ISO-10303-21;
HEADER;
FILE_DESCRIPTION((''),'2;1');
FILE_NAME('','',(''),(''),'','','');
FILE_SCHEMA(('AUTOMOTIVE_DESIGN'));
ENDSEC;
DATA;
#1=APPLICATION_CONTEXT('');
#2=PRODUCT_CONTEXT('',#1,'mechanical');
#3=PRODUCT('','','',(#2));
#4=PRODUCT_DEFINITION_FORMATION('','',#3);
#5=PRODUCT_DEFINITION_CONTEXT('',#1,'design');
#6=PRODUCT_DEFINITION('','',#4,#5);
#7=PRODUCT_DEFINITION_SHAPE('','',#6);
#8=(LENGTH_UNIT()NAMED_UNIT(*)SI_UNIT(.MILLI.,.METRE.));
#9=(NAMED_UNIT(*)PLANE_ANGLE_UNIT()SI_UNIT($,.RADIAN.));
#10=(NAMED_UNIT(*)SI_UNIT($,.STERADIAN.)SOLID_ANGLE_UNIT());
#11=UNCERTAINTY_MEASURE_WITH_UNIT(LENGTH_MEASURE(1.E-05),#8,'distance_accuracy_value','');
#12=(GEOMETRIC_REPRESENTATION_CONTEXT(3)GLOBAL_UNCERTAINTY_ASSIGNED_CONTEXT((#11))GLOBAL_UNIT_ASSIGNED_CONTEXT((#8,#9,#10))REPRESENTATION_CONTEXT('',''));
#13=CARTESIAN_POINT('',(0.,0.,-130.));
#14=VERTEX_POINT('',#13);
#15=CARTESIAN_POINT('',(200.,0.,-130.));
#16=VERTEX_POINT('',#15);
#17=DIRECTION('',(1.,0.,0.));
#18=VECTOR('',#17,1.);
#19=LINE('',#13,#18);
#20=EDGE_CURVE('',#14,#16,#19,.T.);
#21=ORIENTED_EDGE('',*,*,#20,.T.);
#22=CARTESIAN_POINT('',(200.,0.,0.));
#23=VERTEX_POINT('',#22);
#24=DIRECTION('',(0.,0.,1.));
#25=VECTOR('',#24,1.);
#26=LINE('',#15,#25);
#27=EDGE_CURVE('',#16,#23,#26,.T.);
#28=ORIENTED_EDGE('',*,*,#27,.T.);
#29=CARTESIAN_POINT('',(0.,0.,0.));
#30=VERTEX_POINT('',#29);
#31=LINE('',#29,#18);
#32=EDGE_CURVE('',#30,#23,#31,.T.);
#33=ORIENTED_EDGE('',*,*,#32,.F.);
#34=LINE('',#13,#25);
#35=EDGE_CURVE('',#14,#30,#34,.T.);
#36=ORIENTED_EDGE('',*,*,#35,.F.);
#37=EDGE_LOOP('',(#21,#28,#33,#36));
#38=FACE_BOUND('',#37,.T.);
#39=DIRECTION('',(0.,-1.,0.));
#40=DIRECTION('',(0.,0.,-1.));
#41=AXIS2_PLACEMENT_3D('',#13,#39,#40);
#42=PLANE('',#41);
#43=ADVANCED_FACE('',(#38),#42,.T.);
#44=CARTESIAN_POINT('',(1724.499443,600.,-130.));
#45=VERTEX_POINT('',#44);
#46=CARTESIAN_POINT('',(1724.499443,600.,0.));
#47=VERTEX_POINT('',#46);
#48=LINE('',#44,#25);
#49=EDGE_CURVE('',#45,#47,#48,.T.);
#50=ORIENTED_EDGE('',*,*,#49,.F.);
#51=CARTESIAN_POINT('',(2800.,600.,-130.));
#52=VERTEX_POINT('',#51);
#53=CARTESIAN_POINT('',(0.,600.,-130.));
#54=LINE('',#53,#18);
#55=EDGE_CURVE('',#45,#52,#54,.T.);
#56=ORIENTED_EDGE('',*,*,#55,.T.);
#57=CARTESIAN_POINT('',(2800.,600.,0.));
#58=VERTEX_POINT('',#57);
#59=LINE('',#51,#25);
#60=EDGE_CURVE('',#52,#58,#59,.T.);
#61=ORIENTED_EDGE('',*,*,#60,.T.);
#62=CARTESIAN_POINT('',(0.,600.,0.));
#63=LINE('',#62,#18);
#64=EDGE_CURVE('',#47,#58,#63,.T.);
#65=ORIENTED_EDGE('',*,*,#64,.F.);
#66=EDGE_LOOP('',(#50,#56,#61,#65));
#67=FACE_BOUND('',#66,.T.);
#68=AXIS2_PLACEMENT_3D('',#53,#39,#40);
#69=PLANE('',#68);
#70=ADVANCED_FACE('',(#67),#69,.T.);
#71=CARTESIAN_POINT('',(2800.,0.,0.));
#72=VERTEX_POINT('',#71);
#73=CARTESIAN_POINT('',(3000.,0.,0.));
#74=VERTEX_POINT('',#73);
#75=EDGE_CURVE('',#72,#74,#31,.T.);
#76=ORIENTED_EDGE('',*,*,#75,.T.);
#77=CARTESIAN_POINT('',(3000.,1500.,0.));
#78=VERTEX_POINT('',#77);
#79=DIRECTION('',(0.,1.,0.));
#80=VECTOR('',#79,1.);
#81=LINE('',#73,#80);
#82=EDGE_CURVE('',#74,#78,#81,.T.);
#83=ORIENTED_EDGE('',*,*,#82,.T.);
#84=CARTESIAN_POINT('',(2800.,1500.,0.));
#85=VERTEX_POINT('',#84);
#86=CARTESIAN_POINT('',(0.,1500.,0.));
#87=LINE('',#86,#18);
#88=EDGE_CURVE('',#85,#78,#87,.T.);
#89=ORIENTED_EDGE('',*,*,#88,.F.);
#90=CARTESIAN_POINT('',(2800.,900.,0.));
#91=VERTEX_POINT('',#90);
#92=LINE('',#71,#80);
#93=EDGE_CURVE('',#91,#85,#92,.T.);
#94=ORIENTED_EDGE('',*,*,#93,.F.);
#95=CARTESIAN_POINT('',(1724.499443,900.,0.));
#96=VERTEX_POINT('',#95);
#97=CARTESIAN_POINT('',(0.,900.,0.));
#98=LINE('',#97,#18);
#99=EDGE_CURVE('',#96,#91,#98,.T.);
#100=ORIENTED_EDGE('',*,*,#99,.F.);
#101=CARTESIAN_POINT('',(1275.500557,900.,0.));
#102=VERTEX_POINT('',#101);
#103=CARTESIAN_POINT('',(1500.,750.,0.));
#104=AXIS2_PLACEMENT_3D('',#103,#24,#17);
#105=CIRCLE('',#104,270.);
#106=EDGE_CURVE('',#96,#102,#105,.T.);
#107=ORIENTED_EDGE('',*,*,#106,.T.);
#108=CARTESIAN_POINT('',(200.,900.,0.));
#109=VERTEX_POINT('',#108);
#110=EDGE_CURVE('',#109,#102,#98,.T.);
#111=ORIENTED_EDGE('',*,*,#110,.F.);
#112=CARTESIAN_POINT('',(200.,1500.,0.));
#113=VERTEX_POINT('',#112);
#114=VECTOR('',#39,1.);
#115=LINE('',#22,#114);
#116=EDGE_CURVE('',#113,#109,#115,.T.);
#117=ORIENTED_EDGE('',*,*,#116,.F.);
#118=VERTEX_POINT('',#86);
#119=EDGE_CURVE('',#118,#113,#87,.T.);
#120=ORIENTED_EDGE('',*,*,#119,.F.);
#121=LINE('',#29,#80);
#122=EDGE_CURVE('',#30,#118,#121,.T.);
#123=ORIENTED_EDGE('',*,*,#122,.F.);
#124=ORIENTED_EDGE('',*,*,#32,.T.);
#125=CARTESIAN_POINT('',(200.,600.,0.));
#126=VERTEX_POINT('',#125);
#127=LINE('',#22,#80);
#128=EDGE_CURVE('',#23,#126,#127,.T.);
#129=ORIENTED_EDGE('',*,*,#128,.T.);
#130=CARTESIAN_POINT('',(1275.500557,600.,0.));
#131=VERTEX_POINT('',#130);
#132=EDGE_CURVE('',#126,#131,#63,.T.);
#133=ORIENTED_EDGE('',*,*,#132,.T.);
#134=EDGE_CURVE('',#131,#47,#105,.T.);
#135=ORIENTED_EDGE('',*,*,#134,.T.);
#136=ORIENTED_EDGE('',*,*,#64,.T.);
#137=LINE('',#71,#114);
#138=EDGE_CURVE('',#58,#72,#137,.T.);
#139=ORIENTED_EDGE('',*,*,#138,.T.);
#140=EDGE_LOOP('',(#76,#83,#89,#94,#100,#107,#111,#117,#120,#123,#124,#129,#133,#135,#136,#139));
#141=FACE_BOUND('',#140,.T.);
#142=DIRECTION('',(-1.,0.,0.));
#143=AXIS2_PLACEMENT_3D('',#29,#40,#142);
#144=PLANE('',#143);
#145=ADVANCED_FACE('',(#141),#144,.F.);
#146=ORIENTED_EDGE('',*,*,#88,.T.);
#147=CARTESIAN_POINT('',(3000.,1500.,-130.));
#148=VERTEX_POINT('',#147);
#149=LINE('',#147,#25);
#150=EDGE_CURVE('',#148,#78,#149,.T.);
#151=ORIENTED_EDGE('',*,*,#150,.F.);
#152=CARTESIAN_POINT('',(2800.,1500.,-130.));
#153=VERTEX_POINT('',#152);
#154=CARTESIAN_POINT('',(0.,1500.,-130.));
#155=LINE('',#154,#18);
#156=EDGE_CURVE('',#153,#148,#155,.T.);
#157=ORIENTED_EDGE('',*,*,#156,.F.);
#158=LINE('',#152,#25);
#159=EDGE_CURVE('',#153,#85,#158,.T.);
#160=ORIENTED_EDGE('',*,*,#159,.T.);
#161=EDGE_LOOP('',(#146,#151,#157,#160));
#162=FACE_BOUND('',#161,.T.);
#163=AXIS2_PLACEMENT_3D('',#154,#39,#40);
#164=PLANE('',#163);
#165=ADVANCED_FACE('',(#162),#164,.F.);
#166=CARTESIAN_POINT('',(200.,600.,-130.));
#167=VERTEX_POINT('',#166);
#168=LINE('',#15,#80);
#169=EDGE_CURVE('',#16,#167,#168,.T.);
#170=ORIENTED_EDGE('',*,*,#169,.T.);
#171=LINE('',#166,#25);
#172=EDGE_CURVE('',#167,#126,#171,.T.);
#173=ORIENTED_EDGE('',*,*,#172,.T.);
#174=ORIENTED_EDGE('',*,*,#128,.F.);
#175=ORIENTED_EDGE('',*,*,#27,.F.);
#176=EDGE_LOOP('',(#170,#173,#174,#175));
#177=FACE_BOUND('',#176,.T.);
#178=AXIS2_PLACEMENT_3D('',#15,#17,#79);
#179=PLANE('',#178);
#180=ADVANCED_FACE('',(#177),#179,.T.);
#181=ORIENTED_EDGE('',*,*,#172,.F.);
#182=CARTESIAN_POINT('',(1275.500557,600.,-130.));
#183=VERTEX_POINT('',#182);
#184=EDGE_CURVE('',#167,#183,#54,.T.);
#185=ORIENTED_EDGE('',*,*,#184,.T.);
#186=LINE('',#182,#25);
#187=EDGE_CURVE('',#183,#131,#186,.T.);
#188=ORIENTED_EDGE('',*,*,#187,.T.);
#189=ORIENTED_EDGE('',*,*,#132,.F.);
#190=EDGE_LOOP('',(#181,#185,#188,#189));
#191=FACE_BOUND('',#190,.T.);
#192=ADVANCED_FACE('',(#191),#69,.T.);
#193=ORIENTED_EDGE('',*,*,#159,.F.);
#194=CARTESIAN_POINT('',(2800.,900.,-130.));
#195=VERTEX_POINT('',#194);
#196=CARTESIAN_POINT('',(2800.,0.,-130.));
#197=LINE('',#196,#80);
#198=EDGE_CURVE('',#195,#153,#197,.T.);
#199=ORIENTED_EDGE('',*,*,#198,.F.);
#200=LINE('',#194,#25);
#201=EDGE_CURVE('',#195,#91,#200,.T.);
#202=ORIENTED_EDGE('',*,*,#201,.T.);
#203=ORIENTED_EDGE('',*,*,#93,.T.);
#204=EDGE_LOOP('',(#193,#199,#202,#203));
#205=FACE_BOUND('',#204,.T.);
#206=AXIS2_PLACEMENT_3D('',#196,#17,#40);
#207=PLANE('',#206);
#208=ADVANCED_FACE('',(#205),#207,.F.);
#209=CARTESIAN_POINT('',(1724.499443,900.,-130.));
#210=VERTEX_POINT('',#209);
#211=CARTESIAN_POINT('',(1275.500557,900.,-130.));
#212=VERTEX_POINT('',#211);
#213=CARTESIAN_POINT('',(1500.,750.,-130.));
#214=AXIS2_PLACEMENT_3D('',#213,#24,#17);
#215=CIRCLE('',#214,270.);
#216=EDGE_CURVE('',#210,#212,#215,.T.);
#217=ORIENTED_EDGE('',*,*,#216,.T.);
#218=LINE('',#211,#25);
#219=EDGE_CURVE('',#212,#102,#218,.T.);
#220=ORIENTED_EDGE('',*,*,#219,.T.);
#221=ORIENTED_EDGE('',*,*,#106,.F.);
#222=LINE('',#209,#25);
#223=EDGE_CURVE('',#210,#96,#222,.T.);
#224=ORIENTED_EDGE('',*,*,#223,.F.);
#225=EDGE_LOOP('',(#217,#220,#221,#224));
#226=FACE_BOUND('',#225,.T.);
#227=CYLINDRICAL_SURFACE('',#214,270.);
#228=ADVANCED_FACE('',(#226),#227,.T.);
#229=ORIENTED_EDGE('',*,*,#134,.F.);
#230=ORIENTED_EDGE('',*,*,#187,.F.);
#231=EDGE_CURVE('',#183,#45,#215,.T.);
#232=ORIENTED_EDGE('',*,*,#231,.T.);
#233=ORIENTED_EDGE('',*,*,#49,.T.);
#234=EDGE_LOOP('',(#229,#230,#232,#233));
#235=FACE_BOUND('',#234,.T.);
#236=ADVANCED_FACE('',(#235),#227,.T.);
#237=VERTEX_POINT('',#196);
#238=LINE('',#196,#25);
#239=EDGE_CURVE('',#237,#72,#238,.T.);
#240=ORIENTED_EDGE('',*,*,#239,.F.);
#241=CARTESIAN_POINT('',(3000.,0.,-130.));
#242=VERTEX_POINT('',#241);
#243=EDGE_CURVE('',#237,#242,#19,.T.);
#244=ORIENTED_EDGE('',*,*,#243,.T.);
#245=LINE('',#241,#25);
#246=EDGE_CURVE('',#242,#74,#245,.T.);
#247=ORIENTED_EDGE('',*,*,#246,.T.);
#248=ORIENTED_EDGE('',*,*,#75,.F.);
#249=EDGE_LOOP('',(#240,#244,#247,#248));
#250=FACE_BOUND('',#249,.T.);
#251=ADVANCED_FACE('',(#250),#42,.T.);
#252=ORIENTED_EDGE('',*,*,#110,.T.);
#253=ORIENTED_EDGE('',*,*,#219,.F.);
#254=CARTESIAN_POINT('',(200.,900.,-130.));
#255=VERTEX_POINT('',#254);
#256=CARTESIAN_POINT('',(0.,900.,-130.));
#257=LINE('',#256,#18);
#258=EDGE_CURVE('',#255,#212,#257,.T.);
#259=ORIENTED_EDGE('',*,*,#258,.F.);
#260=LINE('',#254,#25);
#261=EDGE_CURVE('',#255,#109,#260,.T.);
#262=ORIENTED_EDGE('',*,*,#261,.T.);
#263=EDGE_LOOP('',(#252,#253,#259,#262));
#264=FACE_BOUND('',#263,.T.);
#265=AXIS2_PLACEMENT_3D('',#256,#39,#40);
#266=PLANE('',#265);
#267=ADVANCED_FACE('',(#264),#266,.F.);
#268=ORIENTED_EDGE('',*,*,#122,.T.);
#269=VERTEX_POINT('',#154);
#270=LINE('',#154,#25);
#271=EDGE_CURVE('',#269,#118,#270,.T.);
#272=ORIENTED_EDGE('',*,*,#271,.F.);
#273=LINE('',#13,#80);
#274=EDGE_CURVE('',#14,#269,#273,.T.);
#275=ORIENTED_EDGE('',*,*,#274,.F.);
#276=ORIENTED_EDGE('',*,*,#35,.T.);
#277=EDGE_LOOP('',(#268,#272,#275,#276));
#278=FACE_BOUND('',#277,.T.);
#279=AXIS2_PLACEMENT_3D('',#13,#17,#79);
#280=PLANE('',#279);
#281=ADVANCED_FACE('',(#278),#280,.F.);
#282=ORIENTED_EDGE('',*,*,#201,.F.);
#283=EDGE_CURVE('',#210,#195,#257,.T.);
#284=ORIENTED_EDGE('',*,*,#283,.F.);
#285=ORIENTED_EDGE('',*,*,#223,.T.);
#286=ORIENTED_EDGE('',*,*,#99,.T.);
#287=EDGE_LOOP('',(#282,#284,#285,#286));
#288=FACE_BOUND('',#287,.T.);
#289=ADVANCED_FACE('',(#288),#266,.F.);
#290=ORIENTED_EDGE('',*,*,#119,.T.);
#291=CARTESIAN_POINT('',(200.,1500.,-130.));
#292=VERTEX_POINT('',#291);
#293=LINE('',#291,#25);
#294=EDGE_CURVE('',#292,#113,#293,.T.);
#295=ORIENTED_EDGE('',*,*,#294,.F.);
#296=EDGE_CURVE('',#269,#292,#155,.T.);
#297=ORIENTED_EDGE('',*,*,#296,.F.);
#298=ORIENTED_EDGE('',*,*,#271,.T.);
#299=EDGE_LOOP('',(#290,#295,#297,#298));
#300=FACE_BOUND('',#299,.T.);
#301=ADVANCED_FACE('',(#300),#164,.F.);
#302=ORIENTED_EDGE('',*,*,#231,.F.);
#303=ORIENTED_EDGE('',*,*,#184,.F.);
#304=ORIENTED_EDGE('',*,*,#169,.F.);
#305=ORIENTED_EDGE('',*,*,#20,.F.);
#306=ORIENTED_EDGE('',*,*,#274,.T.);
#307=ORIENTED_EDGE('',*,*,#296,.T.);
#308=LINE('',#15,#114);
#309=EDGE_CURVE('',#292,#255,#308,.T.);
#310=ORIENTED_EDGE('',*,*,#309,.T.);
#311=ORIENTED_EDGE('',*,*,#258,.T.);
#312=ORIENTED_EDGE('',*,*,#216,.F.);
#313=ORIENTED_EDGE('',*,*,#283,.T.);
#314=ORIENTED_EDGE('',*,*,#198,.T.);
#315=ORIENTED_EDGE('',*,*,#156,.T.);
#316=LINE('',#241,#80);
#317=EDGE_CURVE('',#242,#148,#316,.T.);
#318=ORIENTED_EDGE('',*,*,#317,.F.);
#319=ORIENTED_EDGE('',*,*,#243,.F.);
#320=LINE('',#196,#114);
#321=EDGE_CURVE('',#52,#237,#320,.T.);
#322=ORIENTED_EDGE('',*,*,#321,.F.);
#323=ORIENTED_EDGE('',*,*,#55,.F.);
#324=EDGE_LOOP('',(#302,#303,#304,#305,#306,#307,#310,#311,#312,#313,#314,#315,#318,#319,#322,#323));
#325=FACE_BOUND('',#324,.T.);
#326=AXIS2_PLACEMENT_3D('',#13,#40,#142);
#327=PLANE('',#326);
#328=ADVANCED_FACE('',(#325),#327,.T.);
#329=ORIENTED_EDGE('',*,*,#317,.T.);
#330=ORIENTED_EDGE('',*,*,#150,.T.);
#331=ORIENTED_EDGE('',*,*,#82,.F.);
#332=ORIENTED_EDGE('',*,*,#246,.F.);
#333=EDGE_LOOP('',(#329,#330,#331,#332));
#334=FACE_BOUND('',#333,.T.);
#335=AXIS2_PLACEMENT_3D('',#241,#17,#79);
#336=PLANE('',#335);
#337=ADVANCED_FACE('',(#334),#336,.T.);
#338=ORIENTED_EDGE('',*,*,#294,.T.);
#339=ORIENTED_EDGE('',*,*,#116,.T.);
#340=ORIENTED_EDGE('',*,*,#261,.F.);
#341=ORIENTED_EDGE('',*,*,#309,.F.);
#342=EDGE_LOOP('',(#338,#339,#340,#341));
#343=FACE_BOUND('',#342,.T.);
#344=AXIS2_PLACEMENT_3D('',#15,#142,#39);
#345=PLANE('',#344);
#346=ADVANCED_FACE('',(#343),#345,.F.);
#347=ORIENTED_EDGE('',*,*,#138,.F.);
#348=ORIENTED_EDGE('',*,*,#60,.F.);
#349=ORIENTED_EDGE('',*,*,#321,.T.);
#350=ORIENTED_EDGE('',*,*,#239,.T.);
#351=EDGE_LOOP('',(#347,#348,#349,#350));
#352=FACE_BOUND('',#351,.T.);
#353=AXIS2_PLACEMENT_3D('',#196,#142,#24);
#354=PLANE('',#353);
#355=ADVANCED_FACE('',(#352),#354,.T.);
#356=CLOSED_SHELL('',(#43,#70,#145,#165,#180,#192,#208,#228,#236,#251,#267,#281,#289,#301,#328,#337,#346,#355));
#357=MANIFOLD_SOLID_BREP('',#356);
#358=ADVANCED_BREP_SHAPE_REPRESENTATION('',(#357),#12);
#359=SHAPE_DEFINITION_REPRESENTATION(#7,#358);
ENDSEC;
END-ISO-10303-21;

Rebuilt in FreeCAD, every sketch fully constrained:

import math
import FreeCAD as App
import Part
import Sketcher
from FreeCAD import Vector


def add_polygon(sketch, points):
    """Adds a closed chain of lines whose ends are joined by coincident constraints."""
    first, n = sketch.GeometryCount, len(points)
    for a, b in zip(points, points[1:] + points[:1]):
        sketch.addGeometry(Part.LineSegment(App.Vector(*a, 0), App.Vector(*b, 0)), False)
    for i in range(n):
        sketch.addConstraint(Sketcher.Constraint("Coincident", first + i, 2, first + (i + 1) % n, 1))

doc = App.newDocument("Part")
body = doc.addObject("PartDesign::Body", "Body")

sketch1 = body.newObject("Sketcher::SketchObject", "Sketch")
sketch1.AttachmentSupport = (doc.getObject("XY_Plane"), [""])
sketch1.MapMode = "FlatFace"
add_polygon(sketch1, [(0, 1500), (0, 0), (3000, 0), (3000, 1500)])
sketch1.addConstraint([
    Sketcher.Constraint("Vertical", 0),
    Sketcher.Constraint("Horizontal", 1),
    Sketcher.Constraint("Vertical", 2),
    Sketcher.Constraint("Horizontal", 3),
    Sketcher.Constraint("Coincident", 0, 2, -1, 1),
    Sketcher.Constraint("DistanceX", 1, 1, 1, 2, 3000.0),
    Sketcher.Constraint("DistanceY", 0, 2, 0, 1, 1500.0),
])
pad1 = body.newObject("PartDesign::Pad", "Pad")
pad1.Profile = sketch1
pad1.Length = 130
pad1.Reversed = True

sketch2 = body.newObject("Sketcher::SketchObject", "Sketch001")
sketch2.AttachmentSupport = (doc.getObject("XY_Plane"), [""])
sketch2.MapMode = "FlatFace"
sketch2.addGeometry([
    Part.LineSegment(Vector(200, 900, 0), Vector(1276, 900, 0)),
    Part.ArcOfCircle(Part.Circle(Vector(1500, 750, 0), Vector(0, 0, 1), 270), math.radians(34), math.radians(146)),
    Part.LineSegment(Vector(1724, 900, 0), Vector(2800, 900, 0)),
    Part.LineSegment(Vector(2800, 900, 0), Vector(2800, 1500, 0)),
    Part.LineSegment(Vector(2800, 1500, 0), Vector(200, 1500, 0)),
    Part.LineSegment(Vector(200, 1500, 0), Vector(200, 900, 0)),
    Part.LineSegment(Vector(200, 600, 0), Vector(200, 0, 0)),
    Part.LineSegment(Vector(200, 0, 0), Vector(2800, 0, 0)),
    Part.LineSegment(Vector(2800, 0, 0), Vector(2800, 600, 0)),
    Part.LineSegment(Vector(2800, 600, 0), Vector(1724, 600, 0)),
    Part.ArcOfCircle(Part.Circle(Vector(1500, 750, 0), Vector(0, 0, 1), 270), math.radians(-146), math.radians(-34)),
    Part.LineSegment(Vector(1276, 600, 0), Vector(200, 600, 0)),
], False)
sketch2.addConstraint([
    Sketcher.Constraint("Coincident", 0, 2, 1, 2),
    Sketcher.Constraint("Coincident", 1, 1, 2, 1),
    Sketcher.Constraint("Coincident", 2, 2, 3, 1),
    Sketcher.Constraint("Coincident", 3, 2, 4, 1),
    Sketcher.Constraint("Coincident", 4, 2, 5, 1),
    Sketcher.Constraint("Coincident", 5, 2, 0, 1),
    Sketcher.Constraint("Coincident", 6, 2, 7, 1),
    Sketcher.Constraint("Coincident", 7, 2, 8, 1),
    Sketcher.Constraint("Coincident", 8, 2, 9, 1),
    Sketcher.Constraint("Coincident", 9, 2, 10, 2),
    Sketcher.Constraint("Coincident", 10, 1, 11, 1),
    Sketcher.Constraint("Coincident", 11, 2, 6, 1),
    Sketcher.Constraint("Horizontal", 0),
    Sketcher.Constraint("Horizontal", 2),
    Sketcher.Constraint("Vertical", 3),
    Sketcher.Constraint("Horizontal", 4),
    Sketcher.Constraint("Vertical", 5),
    Sketcher.Constraint("Vertical", 6),
    Sketcher.Constraint("Horizontal", 7),
    Sketcher.Constraint("Vertical", 8),
    Sketcher.Constraint("Horizontal", 9),
    Sketcher.Constraint("Horizontal", 11),
    Sketcher.Constraint("Coincident", 10, 3, 1, 3),
    Sketcher.Constraint("Equal", 1, 10),
    Sketcher.Constraint("PointOnObject", 6, 2, -1),
    Sketcher.Constraint("Horizontal", 0, 2, 1, 1),
    Sketcher.Constraint("Horizontal", 9, 2, 10, 1),
    Sketcher.Constraint("Vertical", 5, 2, 6, 2),
    Sketcher.Constraint("Vertical", 3, 2, 7, 2),
    Sketcher.Constraint("Vertical", 1, 1, 9, 2),
    Sketcher.Constraint("Equal", 0, 2),
    Sketcher.Constraint("Equal", 5, 6),
    Sketcher.Constraint("Radius", 1, 270.0),
    Sketcher.Constraint("DistanceX", 4, 2, 4, 1, 2600.0),
    Sketcher.Constraint("DistanceY", 3, 1, 3, 2, 600.0),
    Sketcher.Constraint("DistanceX", -1, 1, 1, 3, 1500.0),
    Sketcher.Constraint("DistanceY", -1, 1, 1, 3, 750.0),
])
pocket1 = body.newObject("PartDesign::Pocket", "Pocket")
pocket1.Profile = sketch2
pocket1.Length = 130

doc.recompute()
